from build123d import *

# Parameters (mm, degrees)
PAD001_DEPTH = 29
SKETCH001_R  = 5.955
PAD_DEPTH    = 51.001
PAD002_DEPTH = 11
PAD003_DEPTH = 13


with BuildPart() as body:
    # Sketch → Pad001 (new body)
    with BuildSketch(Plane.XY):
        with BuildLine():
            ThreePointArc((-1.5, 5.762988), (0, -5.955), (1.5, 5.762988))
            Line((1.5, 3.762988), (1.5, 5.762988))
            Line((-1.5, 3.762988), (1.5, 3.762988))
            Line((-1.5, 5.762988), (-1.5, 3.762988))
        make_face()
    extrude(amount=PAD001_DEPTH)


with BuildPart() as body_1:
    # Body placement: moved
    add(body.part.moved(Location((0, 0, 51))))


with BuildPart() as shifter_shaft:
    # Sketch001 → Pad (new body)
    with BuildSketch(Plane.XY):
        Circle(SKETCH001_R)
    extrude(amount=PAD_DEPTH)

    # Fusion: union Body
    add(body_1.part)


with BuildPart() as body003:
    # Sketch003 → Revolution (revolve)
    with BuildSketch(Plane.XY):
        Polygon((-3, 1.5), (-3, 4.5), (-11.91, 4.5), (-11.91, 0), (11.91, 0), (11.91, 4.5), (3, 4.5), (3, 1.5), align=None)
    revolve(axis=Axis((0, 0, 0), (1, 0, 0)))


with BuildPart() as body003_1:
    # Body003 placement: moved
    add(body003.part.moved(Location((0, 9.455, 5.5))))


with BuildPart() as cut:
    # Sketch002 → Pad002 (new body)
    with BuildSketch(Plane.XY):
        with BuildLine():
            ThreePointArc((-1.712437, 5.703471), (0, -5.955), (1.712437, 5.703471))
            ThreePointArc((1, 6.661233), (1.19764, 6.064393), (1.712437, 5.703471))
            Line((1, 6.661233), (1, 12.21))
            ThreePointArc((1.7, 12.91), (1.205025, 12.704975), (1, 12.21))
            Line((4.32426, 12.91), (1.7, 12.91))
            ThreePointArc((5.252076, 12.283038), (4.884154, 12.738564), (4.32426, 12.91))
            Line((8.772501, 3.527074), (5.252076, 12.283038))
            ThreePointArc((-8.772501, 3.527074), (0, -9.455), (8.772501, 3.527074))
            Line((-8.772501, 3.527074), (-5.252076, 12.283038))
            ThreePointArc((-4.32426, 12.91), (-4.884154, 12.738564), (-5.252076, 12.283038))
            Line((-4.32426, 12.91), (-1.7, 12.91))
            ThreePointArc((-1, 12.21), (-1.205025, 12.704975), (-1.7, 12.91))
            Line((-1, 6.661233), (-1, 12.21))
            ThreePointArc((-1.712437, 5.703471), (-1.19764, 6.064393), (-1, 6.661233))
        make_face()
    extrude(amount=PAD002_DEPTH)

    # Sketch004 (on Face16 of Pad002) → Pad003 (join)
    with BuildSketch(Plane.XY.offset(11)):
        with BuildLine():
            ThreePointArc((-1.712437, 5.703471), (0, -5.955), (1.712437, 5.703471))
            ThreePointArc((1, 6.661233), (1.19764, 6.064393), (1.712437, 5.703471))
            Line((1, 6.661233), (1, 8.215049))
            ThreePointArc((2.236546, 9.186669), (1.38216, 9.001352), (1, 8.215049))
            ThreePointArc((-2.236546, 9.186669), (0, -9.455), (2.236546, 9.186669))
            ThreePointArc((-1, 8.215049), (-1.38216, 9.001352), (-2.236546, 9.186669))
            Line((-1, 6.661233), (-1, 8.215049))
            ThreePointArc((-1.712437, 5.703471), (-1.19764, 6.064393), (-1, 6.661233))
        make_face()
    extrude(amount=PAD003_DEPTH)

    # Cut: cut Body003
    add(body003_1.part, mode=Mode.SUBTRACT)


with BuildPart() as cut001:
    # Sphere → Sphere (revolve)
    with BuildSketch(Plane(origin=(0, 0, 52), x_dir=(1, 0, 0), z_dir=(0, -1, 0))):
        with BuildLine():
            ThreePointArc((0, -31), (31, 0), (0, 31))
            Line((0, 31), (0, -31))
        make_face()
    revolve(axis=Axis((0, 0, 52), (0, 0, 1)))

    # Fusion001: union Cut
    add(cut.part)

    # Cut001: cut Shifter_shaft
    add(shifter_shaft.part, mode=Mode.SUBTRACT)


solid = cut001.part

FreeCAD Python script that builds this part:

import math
import FreeCAD as App
import Part
import Sketcher

V = App.Vector


def add_polygon(sketch, points):
    """Adds a closed chain of lines whose ends are joined by coincident constraints."""
    first, n = sketch.GeometryCount, len(points)
    for a, b in zip(points, points[1:] + points[:1]):
        sketch.addGeometry(Part.LineSegment(App.Vector(*a, 0), App.Vector(*b, 0)), False)
    for i in range(n):
        sketch.addConstraint(Sketcher.Constraint("Coincident", first + i, 2, first + (i + 1) % n, 1))

doc = App.newDocument("Part")
body = doc.addObject("PartDesign::Body", "Body")

# Sketch on XY plane
sketch1 = doc.addObject("Sketcher::SketchObject", "Sketch")
body.addObject(sketch1)
sketch1.AttachmentSupport = (doc.XY_Plane, [""])
sketch1.MapMode = "FlatFace"
sketch1.addGeometry(Part.ArcOfCircle(Part.Circle(V(0, 0, 0), V(0, 0, 1), 6), math.radians(105), math.radians(435)), False)
sketch1.addGeometry(Part.LineSegment(V(1.5, 5.8, 0), V(1.5, 3.8, 0)), False)
sketch1.addGeometry(Part.LineSegment(V(1.5, 3.8, 0), V(-1.5, 3.8, 0)), False)
sketch1.addGeometry(Part.LineSegment(V(-1.5, 3.8, 0), V(-1.5, 5.8, 0)), False)
sketch1.addConstraint(Sketcher.Constraint("Coincident", 0, 2, 1, 1))
sketch1.addConstraint(Sketcher.Constraint("Coincident", 1, 2, 2, 1))
sketch1.addConstraint(Sketcher.Constraint("Coincident", 2, 2, 3, 1))
sketch1.addConstraint(Sketcher.Constraint("Coincident", 3, 2, 0, 1))
sketch1.addConstraint(Sketcher.Constraint("Vertical", 1))
sketch1.addConstraint(Sketcher.Constraint("Horizontal", 2))
sketch1.addConstraint(Sketcher.Constraint("Vertical", 3))
sketch1.addConstraint(Sketcher.Constraint("Coincident", 0, 3, -1, 1))
sketch1.addConstraint(Sketcher.Constraint("Horizontal", 0, 2, 3, 2))
sketch1.addConstraint(Sketcher.Constraint("DistanceX", 2, 2, 2, 1, 3.0))
sketch1.addConstraint(Sketcher.Constraint("DistanceY", 1, 2, 1, 1, 2.0))
sketch1.addConstraint(Sketcher.Constraint("Radius", 0, 5.955))
pad1 = doc.addObject("PartDesign::Pad", "Pad")
body.addObject(pad1)
pad1.Profile = sketch1
pad1.Length = 29
body2 = doc.addObject("PartDesign::Body", "Body001")
doc.recompute()

body.Placement = App.Placement(V(0, 0, 51), App.Rotation(V(0, 0, 1), 0))
boolean = doc.addObject("PartDesign::Boolean", "Boolean")
body2.addObject(boolean)
boolean.Type = "Fuse"
boolean.addObjects([body])
body3 = doc.addObject("PartDesign::Body", "Body002")

# Sketch on XY plane
sketch2 = doc.addObject("Sketcher::SketchObject", "Sketch001")
body3.addObject(sketch2)
sketch2.AttachmentSupport = (doc.getObject("XY_Plane002"), [""])
sketch2.MapMode = "FlatFace"
sketch2.addGeometry(Part.Circle(V(0, 0, 0), V(0, 0, 1), 6), False)
sketch2.addConstraint(Sketcher.Constraint("Coincident", 0, 3, -1, 1))
sketch2.addConstraint(Sketcher.Constraint("Diameter", 0, 11.91))
pad2 = doc.addObject("PartDesign::Pad", "Pad001")
body3.addObject(pad2)
pad2.Profile = sketch2
pad2.Length = 51.001
doc.recompute()

boolean2 = doc.addObject("PartDesign::Boolean", "Boolean001")
body3.addObject(boolean2)
boolean2.Type = "Fuse"
boolean2.addObjects([body2])
body4 = doc.addObject("PartDesign::Body", "Body003")

# Sketch on XY plane
sketch3 = doc.addObject("Sketcher::SketchObject", "Sketch002")
body4.addObject(sketch3)
sketch3.AttachmentSupport = (doc.getObject("XY_Plane003"), [""])
sketch3.MapMode = "FlatFace"
add_polygon(sketch3, [(-3, 1.5), (-3, 4.5), (-11.9, 4.5), (-11.9, 0), (11.9, 0), (11.9, 4.5), (3, 4.5), (3, 1.5)])  # lines 0-7
sketch3.addConstraint(Sketcher.Constraint("Vertical", 0))
sketch3.addConstraint(Sketcher.Constraint("Horizontal", 1))
sketch3.addConstraint(Sketcher.Constraint("Vertical", 2))
sketch3.addConstraint(Sketcher.Constraint("Horizontal", 3))
sketch3.addConstraint(Sketcher.Constraint("Vertical", 4))
sketch3.addConstraint(Sketcher.Constraint("Horizontal", 5))
sketch3.addConstraint(Sketcher.Constraint("Vertical", 6))
sketch3.addConstraint(Sketcher.Constraint("Horizontal", 7))
sketch3.addConstraint(Sketcher.Constraint("Symmetric", 2, 2, 3, 2, -1, 1))
sketch3.addConstraint(Sketcher.Constraint("Symmetric", 0, 2, 5, 2, -2))
sketch3.addConstraint(Sketcher.Constraint("DistanceX", 7, 2, 7, 1, 6.0))
sketch3.addConstraint(Sketcher.Constraint("DistanceY", 0, 1, 0, 2, 3.0))
sketch3.addConstraint(Sketcher.Constraint("DistanceY", 2, 2, 2, 1, 4.5))
sketch3.addConstraint(Sketcher.Constraint("DistanceX", 1, 2, 1, 1, 8.91))
revolution = doc.addObject("PartDesign::Revolution", "Revolution")
body4.addObject(revolution)
revolution.Profile = sketch3
revolution.ReferenceAxis = (sketch3, ["H_Axis"])
revolution.Angle = 360
body5 = doc.addObject("PartDesign::Body", "Body004")
doc.recompute()

body4.Placement = App.Placement(V(0, 9.455, 5.5), App.Rotation(V(0, 0, 1), 0))
boolean3 = doc.addObject("PartDesign::Boolean", "Boolean002")
body5.addObject(boolean3)
boolean3.Type = "Fuse"
boolean3.addObjects([body4])
body6 = doc.addObject("PartDesign::Body", "Body005")

# Sketch on XY plane
sketch4 = doc.addObject("Sketcher::SketchObject", "Sketch003")
body6.addObject(sketch4)
sketch4.AttachmentSupport = (doc.getObject("XY_Plane005"), [""])
sketch4.MapMode = "FlatFace"
sketch4.addGeometry(Part.ArcOfCircle(Part.Circle(V(0, 0, 0), V(0, 0, 1), 6), math.radians(107), math.radians(433)), False)
sketch4.addGeometry(Part.ArcOfCircle(Part.Circle(V(-2, 6.7, 0), V(0, 0, 1), 1), math.radians(-73), math.radians(0)), False)
sketch4.addGeometry(Part.LineSegment(V(-1, 6.7, 0), V(-1, 12.2, 0)), False)
sketch4.addGeometry(Part.ArcOfCircle(Part.Circle(V(-1.7, 12.2, 0), V(0, 0, 1), 0.7), math.radians(0), math.radians(90)), False)
sketch4.addGeometry(Part.LineSegment(V(-1.7, 12.9, 0), V(-4.3, 12.9, 0)), False)
sketch4.addGeometry(Part.ArcOfCircle(Part.Circle(V(-4.3, 11.9, 0), V(0, 0, 1), 1), math.radians(90), math.radians(158)), False)
sketch4.addGeometry(Part.LineSegment(V(-5.3, 12.3, 0), V(-8.8, 3.5, 0)), False)
sketch4.addGeometry(Part.ArcOfCircle(Part.Circle(V(0, 0, 0), V(0, 0, 1), 9.5), math.radians(158), math.radians(382)), False)
sketch4.addGeometry(Part.LineSegment(V(8.8, 3.5, 0), V(5.3, 12.3, 0)), False)
sketch4.addGeometry(Part.ArcOfCircle(Part.Circle(V(4.3, 11.9, 0), V(0, 0, 1), 1), math.radians(22), math.radians(90)), False)
sketch4.addGeometry(Part.LineSegment(V(4.3, 12.9, 0), V(1.7, 12.9, 0)), False)
sketch4.addGeometry(Part.ArcOfCircle(Part.Circle(V(1.7, 12.2, 0), V(0, 0, 1), 0.7), math.radians(90), math.radians(180)), False)
sketch4.addGeometry(Part.LineSegment(V(1, 12.2, 0), V(1, 6.7, 0)), False)
sketch4.addGeometry(Part.ArcOfCircle(Part.Circle(V(2, 6.7, 0), V(0, 0, 1), 1), math.radians(-180), math.radians(-107)), False)
sketch4.addConstraint(Sketcher.Constraint("Tangent", 0, 1, 1, 1))
sketch4.addConstraint(Sketcher.Constraint("Tangent", 1, 2, 2, 1))
sketch4.addConstraint(Sketcher.Constraint("Tangent", 2, 2, 3, 1))
sketch4.addConstraint(Sketcher.Constraint("Tangent", 3, 2, 4, 1))
sketch4.addConstraint(Sketcher.Constraint("Tangent", 4, 2, 5, 1))
sketch4.addConstraint(Sketcher.Constraint("Tangent", 5, 2, 6, 1))
sketch4.addConstraint(Sketcher.Constraint("Tangent", 6, 2, 7, 1))
sketch4.addConstraint(Sketcher.Constraint("Tangent", 7, 2, 8, 1))
sketch4.addConstraint(Sketcher.Constraint("Tangent", 8, 2, 9, 1))
sketch4.addConstraint(Sketcher.Constraint("Tangent", 9, 2, 10, 1))
sketch4.addConstraint(Sketcher.Constraint("Tangent", 10, 2, 11, 1))
sketch4.addConstraint(Sketcher.Constraint("Tangent", 11, 2, 12, 1))
sketch4.addConstraint(Sketcher.Constraint("Tangent", 12, 2, 13, 1))
sketch4.addConstraint(Sketcher.Constraint("Tangent", 13, 2, 0, 2))
sketch4.addConstraint(Sketcher.Constraint("Vertical", 2))
sketch4.addConstraint(Sketcher.Constraint("Horizontal", 4))
sketch4.addConstraint(Sketcher.Constraint("Horizontal", 10))
sketch4.addConstraint(Sketcher.Constraint("Vertical", 12))
sketch4.addConstraint(Sketcher.Constraint("Coincident", 0, 3, -1, 1))
sketch4.addConstraint(Sketcher.Constraint("Coincident", 7, 3, -1, 1))
sketch4.addConstraint(Sketcher.Constraint("Equal", 1, 5))
sketch4.addConstraint(Sketcher.Constraint("Equal", 5, 9))
sketch4.addConstraint(Sketcher.Constraint("Equal", 3, 11))
sketch4.addConstraint(Sketcher.Constraint("Equal", 9, 13))
sketch4.addConstraint(Sketcher.Constraint("Symmetric", 5, 3, 9, 3, -2))
sketch4.addConstraint(Sketcher.Constraint("Horizontal", 1, 3, 13, 3))
sketch4.addConstraint(Sketcher.Constraint("Radius", 1, 1.000002))
sketch4.addConstraint(Sketcher.Constraint("Radius", 3, 0.699999))
sketch4.addConstraint(Sketcher.Constraint("DistanceX", 1, 3, -1, 1, 2.000002))
sketch4.addConstraint(Sketcher.Constraint("Radius", 0, 5.955))
sketch4.addConstraint(Sketcher.Constraint("Radius", 7, 9.455))
sketch4.addConstraint(Sketcher.Constraint("DistanceY", -1, 1, 3, 3, 12.210001))
sketch4.addConstraint(Sketcher.Constraint("DistanceX", 4, 2, 4, 1, 2.62426))
pad3 = doc.addObject("PartDesign::Pad", "Pad002")
body6.addObject(pad3)
pad3.Profile = sketch4
pad3.Length = 11

# Sketch on XY plane
sketch5 = doc.addObject("Sketcher::SketchObject", "Sketch004")
body6.addObject(sketch5)
sketch5.AttachmentSupport = (doc.getObject("XY_Plane005"), [""])
sketch5.MapMode = "FlatFace"
sketch5.AttachmentOffset = App.Placement(V(0, 0, 11), App.Rotation())
sketch5.addGeometry(Part.ArcOfCircle(Part.Circle(V(0, 0, 0), V(0, 0, 1), 6), math.radians(107), math.radians(433)), False)
sketch5.addGeometry(Part.ArcOfCircle(Part.Circle(V(-2, 6.7, 0), V(0, 0, 1), 1), math.radians(-73), math.radians(0)), False)
sketch5.addGeometry(Part.LineSegment(V(-1, 6.7, 0), V(-1, 8.2, 0)), False)
sketch5.addGeometry(Part.ArcOfCircle(Part.Circle(V(-2, 8.2, 0), V(0, 0, 1), 1), math.radians(0), math.radians(104)), False)
sketch5.addGeometry(Part.ArcOfCircle(Part.Circle(V(0, 0, 0), V(0, 0, 1), 9.5), math.radians(104), math.radians(436)), False)
sketch5.addGeometry(Part.ArcOfCircle(Part.Circle(V(2, 8.2, 0), V(0, 0, 1), 1), math.radians(76), math.radians(180)), False)
sketch5.addGeometry(Part.LineSegment(V(1, 8.2, 0), V(1, 6.7, 0)), False)
sketch5.addGeometry(Part.ArcOfCircle(Part.Circle(V(2, 6.7, 0), V(0, 0, 1), 1), math.radians(-180), math.radians(-107)), False)
sketch5.addConstraint(Sketcher.Constraint("Tangent", 0, 1, 1, 1))
sketch5.addConstraint(Sketcher.Constraint("Tangent", 1, 2, 2, 1))
sketch5.addConstraint(Sketcher.Constraint("Tangent", 2, 2, 3, 1))
sketch5.addConstraint(Sketcher.Constraint("Tangent", 3, 2, 4, 1))
sketch5.addConstraint(Sketcher.Constraint("Tangent", 4, 2, 5, 1))
sketch5.addConstraint(Sketcher.Constraint("Tangent", 5, 2, 6, 1))
sketch5.addConstraint(Sketcher.Constraint("Tangent", 6, 2, 7, 1))
sketch5.addConstraint(Sketcher.Constraint("Tangent", 7, 2, 0, 2))
sketch5.addConstraint(Sketcher.Constraint("Vertical", 2))
sketch5.addConstraint(Sketcher.Constraint("Vertical", 6))
sketch5.addConstraint(Sketcher.Constraint("Coincident", 0, 3, -1, 1))
sketch5.addConstraint(Sketcher.Constraint("Coincident", 4, 3, -1, 1))
sketch5.addConstraint(Sketcher.Constraint("Equal", 1, 3))
sketch5.addConstraint(Sketcher.Constraint("Equal", 3, 5))
sketch5.addConstraint(Sketcher.Constraint("Equal", 5, 7))
sketch5.addConstraint(Sketcher.Constraint("Horizontal", 3, 3, 5, 3))
sketch5.addConstraint(Sketcher.Constraint("Radius", 1, 1.000002))
sketch5.addConstraint(Sketcher.Constraint("DistanceX", 1, 3, -1, 1, 2.000002))
sketch5.addConstraint(Sketcher.Constraint("Radius", 0, 5.955))
sketch5.addConstraint(Sketcher.Constraint("Radius", 4, 9.455))
pad4 = doc.addObject("PartDesign::Pad", "Pad003")
body6.addObject(pad4)
pad4.Profile = sketch5
pad4.Length = 13
doc.recompute()

boolean4 = doc.addObject("PartDesign::Boolean", "Boolean003")
body6.addObject(boolean4)
boolean4.Type = "Cut"
boolean4.addObjects([body5])
body7 = doc.addObject("PartDesign::Body", "Body006")

# Sketch on XZ plane
sketch6 = doc.addObject("Sketcher::SketchObject", "Sketch005")
body7.addObject(sketch6)
sketch6.AttachmentSupport = (doc.getObject("XZ_Plane006"), [""])
sketch6.MapMode = "FlatFace"
sketch6.addGeometry(Part.ArcOfCircle(Part.Circle(V(0, 52, 0), V(0, 0, 1), 31), math.radians(-90), math.radians(90)), False)
sketch6.addGeometry(Part.LineSegment(V(0, 83, 0), V(0, 21, 0)), False)
sketch6.addConstraint(Sketcher.Constraint("Coincident", 0, 1, 1, 2))
sketch6.addConstraint(Sketcher.Constraint("Coincident", 1, 1, 0, 2))
sketch6.addConstraint(Sketcher.Constraint("Vertical", 1))
sketch6.addConstraint(Sketcher.Constraint("PointOnObject", 0, 3, -2))
sketch6.addConstraint(Sketcher.Constraint("PointOnObject", 0, 1, -2))
sketch6.addConstraint(Sketcher.Constraint("Radius", 0, 31.0))
sketch6.addConstraint(Sketcher.Constraint("DistanceY", -1, 1, 0, 3, 52.0))
revolution2 = doc.addObject("PartDesign::Revolution", "Revolution001")
body7.addObject(revolution2)
revolution2.Profile = sketch6
revolution2.ReferenceAxis = (sketch6, ["V_Axis"])
revolution2.Angle = 360
doc.recompute()

boolean5 = doc.addObject("PartDesign::Boolean", "Boolean004")
body7.addObject(boolean5)
boolean5.Type = "Fuse"
boolean5.addObjects([body6])
doc.recompute()

boolean6 = doc.addObject("PartDesign::Boolean", "Boolean005")
body7.addObject(boolean6)
boolean6.Type = "Cut"
boolean6.addObjects([body3])

doc.recompute()
